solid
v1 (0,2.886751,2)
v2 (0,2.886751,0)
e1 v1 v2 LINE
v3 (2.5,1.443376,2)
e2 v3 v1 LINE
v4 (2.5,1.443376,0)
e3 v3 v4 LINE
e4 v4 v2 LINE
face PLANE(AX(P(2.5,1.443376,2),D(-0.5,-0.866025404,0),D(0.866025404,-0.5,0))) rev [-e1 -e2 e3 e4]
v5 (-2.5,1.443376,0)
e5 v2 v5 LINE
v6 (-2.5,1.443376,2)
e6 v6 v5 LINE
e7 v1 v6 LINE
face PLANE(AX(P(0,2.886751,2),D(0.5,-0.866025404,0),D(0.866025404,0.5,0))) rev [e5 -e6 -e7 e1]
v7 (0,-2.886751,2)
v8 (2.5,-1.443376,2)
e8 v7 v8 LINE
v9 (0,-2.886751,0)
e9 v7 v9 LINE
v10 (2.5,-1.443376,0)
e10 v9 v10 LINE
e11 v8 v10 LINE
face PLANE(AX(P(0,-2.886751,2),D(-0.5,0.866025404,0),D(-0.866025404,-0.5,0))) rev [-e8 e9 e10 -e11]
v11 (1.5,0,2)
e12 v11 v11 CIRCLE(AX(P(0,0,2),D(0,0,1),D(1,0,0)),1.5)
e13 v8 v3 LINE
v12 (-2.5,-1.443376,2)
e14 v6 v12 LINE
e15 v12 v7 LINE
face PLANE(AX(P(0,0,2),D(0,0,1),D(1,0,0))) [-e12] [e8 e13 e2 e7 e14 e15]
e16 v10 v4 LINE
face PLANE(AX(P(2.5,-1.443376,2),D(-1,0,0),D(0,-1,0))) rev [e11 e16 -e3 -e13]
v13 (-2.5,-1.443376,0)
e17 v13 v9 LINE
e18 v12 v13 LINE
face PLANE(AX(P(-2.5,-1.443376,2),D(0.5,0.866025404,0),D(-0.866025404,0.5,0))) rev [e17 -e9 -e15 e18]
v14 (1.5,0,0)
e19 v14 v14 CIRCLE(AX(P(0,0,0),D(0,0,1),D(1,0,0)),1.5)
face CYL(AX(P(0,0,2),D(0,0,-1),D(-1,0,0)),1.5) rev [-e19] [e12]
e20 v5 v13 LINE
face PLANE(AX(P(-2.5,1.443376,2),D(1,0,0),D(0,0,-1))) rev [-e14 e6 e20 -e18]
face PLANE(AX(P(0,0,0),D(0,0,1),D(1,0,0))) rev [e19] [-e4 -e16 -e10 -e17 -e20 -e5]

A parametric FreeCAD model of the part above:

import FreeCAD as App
import Part
import Sketcher
Q = App.Units.Quantity


def add_polygon(sketch, points):
    """Adds a closed chain of lines whose ends are joined by coincident constraints."""
    first, n = sketch.GeometryCount, len(points)
    for a, b in zip(points, points[1:] + points[:1]):
        sketch.addGeometry(Part.LineSegment(App.Vector(*a, 0), App.Vector(*b, 0)), False)
    for i in range(n):
        sketch.addConstraint(Sketcher.Constraint("Coincident", first + i, 2, first + (i + 1) % n, 1))

doc = App.newDocument("Part")
body = doc.addObject("PartDesign::Body", "Body")

# Sketch on XY plane
sketch1 = body.newObject("Sketcher::SketchObject", "Sketch")
sketch1.AttachmentSupport = (doc.getObject("XY_Plane"), [""])
sketch1.MapMode = "FlatFace"
add_polygon(sketch1, [(0, 2.9), (-2.5, 1.4), (-2.5, -1.4), (0, -2.9), (2.5, -1.4), (2.5, 1.4)])  # lines 0-5
sketch1.addGeometry(Part.Circle(App.Vector(0, 0, 0), App.Vector(0, 0, 1), 1.5), False)  # 6
sketch1.addConstraint(Sketcher.Constraint("Vertical", 1))
sketch1.addConstraint(Sketcher.Constraint("Vertical", 4))
sketch1.addConstraint(Sketcher.Constraint("Coincident", 6, 3, -1, 1))
sketch1.addConstraint(Sketcher.Constraint("Symmetric", 0, 2, 3, 2, -1, 1))
sketch1.addConstraint(Sketcher.Constraint("Symmetric", 2, 2, 5, 2, -1, 1))
sketch1.addConstraint(Sketcher.Constraint("PointOnObject", 2, 2, -2))
sketch1.addConstraint(Sketcher.Constraint("Parallel", 2, 5))
sketch1.addConstraint(Sketcher.Constraint("Horizontal", 1, 2, 3, 2))
sketch1.addConstraint(Sketcher.Constraint("Diameter", 6, 3.0))
sketch1.addConstraint(Sketcher.Constraint("Angle", 0, Q("-150 deg")))
sketch1.addConstraint(Sketcher.Constraint("DistanceX", 1, 2, 3, 2, 5.0))
sketch1.addConstraint(Sketcher.Constraint("DistanceY", 1, 2, 1, 1, 2.886751))
pad1 = body.newObject("PartDesign::Pad", "Pad")
pad1.Profile = sketch1
pad1.Length = 2

doc.recompute()
